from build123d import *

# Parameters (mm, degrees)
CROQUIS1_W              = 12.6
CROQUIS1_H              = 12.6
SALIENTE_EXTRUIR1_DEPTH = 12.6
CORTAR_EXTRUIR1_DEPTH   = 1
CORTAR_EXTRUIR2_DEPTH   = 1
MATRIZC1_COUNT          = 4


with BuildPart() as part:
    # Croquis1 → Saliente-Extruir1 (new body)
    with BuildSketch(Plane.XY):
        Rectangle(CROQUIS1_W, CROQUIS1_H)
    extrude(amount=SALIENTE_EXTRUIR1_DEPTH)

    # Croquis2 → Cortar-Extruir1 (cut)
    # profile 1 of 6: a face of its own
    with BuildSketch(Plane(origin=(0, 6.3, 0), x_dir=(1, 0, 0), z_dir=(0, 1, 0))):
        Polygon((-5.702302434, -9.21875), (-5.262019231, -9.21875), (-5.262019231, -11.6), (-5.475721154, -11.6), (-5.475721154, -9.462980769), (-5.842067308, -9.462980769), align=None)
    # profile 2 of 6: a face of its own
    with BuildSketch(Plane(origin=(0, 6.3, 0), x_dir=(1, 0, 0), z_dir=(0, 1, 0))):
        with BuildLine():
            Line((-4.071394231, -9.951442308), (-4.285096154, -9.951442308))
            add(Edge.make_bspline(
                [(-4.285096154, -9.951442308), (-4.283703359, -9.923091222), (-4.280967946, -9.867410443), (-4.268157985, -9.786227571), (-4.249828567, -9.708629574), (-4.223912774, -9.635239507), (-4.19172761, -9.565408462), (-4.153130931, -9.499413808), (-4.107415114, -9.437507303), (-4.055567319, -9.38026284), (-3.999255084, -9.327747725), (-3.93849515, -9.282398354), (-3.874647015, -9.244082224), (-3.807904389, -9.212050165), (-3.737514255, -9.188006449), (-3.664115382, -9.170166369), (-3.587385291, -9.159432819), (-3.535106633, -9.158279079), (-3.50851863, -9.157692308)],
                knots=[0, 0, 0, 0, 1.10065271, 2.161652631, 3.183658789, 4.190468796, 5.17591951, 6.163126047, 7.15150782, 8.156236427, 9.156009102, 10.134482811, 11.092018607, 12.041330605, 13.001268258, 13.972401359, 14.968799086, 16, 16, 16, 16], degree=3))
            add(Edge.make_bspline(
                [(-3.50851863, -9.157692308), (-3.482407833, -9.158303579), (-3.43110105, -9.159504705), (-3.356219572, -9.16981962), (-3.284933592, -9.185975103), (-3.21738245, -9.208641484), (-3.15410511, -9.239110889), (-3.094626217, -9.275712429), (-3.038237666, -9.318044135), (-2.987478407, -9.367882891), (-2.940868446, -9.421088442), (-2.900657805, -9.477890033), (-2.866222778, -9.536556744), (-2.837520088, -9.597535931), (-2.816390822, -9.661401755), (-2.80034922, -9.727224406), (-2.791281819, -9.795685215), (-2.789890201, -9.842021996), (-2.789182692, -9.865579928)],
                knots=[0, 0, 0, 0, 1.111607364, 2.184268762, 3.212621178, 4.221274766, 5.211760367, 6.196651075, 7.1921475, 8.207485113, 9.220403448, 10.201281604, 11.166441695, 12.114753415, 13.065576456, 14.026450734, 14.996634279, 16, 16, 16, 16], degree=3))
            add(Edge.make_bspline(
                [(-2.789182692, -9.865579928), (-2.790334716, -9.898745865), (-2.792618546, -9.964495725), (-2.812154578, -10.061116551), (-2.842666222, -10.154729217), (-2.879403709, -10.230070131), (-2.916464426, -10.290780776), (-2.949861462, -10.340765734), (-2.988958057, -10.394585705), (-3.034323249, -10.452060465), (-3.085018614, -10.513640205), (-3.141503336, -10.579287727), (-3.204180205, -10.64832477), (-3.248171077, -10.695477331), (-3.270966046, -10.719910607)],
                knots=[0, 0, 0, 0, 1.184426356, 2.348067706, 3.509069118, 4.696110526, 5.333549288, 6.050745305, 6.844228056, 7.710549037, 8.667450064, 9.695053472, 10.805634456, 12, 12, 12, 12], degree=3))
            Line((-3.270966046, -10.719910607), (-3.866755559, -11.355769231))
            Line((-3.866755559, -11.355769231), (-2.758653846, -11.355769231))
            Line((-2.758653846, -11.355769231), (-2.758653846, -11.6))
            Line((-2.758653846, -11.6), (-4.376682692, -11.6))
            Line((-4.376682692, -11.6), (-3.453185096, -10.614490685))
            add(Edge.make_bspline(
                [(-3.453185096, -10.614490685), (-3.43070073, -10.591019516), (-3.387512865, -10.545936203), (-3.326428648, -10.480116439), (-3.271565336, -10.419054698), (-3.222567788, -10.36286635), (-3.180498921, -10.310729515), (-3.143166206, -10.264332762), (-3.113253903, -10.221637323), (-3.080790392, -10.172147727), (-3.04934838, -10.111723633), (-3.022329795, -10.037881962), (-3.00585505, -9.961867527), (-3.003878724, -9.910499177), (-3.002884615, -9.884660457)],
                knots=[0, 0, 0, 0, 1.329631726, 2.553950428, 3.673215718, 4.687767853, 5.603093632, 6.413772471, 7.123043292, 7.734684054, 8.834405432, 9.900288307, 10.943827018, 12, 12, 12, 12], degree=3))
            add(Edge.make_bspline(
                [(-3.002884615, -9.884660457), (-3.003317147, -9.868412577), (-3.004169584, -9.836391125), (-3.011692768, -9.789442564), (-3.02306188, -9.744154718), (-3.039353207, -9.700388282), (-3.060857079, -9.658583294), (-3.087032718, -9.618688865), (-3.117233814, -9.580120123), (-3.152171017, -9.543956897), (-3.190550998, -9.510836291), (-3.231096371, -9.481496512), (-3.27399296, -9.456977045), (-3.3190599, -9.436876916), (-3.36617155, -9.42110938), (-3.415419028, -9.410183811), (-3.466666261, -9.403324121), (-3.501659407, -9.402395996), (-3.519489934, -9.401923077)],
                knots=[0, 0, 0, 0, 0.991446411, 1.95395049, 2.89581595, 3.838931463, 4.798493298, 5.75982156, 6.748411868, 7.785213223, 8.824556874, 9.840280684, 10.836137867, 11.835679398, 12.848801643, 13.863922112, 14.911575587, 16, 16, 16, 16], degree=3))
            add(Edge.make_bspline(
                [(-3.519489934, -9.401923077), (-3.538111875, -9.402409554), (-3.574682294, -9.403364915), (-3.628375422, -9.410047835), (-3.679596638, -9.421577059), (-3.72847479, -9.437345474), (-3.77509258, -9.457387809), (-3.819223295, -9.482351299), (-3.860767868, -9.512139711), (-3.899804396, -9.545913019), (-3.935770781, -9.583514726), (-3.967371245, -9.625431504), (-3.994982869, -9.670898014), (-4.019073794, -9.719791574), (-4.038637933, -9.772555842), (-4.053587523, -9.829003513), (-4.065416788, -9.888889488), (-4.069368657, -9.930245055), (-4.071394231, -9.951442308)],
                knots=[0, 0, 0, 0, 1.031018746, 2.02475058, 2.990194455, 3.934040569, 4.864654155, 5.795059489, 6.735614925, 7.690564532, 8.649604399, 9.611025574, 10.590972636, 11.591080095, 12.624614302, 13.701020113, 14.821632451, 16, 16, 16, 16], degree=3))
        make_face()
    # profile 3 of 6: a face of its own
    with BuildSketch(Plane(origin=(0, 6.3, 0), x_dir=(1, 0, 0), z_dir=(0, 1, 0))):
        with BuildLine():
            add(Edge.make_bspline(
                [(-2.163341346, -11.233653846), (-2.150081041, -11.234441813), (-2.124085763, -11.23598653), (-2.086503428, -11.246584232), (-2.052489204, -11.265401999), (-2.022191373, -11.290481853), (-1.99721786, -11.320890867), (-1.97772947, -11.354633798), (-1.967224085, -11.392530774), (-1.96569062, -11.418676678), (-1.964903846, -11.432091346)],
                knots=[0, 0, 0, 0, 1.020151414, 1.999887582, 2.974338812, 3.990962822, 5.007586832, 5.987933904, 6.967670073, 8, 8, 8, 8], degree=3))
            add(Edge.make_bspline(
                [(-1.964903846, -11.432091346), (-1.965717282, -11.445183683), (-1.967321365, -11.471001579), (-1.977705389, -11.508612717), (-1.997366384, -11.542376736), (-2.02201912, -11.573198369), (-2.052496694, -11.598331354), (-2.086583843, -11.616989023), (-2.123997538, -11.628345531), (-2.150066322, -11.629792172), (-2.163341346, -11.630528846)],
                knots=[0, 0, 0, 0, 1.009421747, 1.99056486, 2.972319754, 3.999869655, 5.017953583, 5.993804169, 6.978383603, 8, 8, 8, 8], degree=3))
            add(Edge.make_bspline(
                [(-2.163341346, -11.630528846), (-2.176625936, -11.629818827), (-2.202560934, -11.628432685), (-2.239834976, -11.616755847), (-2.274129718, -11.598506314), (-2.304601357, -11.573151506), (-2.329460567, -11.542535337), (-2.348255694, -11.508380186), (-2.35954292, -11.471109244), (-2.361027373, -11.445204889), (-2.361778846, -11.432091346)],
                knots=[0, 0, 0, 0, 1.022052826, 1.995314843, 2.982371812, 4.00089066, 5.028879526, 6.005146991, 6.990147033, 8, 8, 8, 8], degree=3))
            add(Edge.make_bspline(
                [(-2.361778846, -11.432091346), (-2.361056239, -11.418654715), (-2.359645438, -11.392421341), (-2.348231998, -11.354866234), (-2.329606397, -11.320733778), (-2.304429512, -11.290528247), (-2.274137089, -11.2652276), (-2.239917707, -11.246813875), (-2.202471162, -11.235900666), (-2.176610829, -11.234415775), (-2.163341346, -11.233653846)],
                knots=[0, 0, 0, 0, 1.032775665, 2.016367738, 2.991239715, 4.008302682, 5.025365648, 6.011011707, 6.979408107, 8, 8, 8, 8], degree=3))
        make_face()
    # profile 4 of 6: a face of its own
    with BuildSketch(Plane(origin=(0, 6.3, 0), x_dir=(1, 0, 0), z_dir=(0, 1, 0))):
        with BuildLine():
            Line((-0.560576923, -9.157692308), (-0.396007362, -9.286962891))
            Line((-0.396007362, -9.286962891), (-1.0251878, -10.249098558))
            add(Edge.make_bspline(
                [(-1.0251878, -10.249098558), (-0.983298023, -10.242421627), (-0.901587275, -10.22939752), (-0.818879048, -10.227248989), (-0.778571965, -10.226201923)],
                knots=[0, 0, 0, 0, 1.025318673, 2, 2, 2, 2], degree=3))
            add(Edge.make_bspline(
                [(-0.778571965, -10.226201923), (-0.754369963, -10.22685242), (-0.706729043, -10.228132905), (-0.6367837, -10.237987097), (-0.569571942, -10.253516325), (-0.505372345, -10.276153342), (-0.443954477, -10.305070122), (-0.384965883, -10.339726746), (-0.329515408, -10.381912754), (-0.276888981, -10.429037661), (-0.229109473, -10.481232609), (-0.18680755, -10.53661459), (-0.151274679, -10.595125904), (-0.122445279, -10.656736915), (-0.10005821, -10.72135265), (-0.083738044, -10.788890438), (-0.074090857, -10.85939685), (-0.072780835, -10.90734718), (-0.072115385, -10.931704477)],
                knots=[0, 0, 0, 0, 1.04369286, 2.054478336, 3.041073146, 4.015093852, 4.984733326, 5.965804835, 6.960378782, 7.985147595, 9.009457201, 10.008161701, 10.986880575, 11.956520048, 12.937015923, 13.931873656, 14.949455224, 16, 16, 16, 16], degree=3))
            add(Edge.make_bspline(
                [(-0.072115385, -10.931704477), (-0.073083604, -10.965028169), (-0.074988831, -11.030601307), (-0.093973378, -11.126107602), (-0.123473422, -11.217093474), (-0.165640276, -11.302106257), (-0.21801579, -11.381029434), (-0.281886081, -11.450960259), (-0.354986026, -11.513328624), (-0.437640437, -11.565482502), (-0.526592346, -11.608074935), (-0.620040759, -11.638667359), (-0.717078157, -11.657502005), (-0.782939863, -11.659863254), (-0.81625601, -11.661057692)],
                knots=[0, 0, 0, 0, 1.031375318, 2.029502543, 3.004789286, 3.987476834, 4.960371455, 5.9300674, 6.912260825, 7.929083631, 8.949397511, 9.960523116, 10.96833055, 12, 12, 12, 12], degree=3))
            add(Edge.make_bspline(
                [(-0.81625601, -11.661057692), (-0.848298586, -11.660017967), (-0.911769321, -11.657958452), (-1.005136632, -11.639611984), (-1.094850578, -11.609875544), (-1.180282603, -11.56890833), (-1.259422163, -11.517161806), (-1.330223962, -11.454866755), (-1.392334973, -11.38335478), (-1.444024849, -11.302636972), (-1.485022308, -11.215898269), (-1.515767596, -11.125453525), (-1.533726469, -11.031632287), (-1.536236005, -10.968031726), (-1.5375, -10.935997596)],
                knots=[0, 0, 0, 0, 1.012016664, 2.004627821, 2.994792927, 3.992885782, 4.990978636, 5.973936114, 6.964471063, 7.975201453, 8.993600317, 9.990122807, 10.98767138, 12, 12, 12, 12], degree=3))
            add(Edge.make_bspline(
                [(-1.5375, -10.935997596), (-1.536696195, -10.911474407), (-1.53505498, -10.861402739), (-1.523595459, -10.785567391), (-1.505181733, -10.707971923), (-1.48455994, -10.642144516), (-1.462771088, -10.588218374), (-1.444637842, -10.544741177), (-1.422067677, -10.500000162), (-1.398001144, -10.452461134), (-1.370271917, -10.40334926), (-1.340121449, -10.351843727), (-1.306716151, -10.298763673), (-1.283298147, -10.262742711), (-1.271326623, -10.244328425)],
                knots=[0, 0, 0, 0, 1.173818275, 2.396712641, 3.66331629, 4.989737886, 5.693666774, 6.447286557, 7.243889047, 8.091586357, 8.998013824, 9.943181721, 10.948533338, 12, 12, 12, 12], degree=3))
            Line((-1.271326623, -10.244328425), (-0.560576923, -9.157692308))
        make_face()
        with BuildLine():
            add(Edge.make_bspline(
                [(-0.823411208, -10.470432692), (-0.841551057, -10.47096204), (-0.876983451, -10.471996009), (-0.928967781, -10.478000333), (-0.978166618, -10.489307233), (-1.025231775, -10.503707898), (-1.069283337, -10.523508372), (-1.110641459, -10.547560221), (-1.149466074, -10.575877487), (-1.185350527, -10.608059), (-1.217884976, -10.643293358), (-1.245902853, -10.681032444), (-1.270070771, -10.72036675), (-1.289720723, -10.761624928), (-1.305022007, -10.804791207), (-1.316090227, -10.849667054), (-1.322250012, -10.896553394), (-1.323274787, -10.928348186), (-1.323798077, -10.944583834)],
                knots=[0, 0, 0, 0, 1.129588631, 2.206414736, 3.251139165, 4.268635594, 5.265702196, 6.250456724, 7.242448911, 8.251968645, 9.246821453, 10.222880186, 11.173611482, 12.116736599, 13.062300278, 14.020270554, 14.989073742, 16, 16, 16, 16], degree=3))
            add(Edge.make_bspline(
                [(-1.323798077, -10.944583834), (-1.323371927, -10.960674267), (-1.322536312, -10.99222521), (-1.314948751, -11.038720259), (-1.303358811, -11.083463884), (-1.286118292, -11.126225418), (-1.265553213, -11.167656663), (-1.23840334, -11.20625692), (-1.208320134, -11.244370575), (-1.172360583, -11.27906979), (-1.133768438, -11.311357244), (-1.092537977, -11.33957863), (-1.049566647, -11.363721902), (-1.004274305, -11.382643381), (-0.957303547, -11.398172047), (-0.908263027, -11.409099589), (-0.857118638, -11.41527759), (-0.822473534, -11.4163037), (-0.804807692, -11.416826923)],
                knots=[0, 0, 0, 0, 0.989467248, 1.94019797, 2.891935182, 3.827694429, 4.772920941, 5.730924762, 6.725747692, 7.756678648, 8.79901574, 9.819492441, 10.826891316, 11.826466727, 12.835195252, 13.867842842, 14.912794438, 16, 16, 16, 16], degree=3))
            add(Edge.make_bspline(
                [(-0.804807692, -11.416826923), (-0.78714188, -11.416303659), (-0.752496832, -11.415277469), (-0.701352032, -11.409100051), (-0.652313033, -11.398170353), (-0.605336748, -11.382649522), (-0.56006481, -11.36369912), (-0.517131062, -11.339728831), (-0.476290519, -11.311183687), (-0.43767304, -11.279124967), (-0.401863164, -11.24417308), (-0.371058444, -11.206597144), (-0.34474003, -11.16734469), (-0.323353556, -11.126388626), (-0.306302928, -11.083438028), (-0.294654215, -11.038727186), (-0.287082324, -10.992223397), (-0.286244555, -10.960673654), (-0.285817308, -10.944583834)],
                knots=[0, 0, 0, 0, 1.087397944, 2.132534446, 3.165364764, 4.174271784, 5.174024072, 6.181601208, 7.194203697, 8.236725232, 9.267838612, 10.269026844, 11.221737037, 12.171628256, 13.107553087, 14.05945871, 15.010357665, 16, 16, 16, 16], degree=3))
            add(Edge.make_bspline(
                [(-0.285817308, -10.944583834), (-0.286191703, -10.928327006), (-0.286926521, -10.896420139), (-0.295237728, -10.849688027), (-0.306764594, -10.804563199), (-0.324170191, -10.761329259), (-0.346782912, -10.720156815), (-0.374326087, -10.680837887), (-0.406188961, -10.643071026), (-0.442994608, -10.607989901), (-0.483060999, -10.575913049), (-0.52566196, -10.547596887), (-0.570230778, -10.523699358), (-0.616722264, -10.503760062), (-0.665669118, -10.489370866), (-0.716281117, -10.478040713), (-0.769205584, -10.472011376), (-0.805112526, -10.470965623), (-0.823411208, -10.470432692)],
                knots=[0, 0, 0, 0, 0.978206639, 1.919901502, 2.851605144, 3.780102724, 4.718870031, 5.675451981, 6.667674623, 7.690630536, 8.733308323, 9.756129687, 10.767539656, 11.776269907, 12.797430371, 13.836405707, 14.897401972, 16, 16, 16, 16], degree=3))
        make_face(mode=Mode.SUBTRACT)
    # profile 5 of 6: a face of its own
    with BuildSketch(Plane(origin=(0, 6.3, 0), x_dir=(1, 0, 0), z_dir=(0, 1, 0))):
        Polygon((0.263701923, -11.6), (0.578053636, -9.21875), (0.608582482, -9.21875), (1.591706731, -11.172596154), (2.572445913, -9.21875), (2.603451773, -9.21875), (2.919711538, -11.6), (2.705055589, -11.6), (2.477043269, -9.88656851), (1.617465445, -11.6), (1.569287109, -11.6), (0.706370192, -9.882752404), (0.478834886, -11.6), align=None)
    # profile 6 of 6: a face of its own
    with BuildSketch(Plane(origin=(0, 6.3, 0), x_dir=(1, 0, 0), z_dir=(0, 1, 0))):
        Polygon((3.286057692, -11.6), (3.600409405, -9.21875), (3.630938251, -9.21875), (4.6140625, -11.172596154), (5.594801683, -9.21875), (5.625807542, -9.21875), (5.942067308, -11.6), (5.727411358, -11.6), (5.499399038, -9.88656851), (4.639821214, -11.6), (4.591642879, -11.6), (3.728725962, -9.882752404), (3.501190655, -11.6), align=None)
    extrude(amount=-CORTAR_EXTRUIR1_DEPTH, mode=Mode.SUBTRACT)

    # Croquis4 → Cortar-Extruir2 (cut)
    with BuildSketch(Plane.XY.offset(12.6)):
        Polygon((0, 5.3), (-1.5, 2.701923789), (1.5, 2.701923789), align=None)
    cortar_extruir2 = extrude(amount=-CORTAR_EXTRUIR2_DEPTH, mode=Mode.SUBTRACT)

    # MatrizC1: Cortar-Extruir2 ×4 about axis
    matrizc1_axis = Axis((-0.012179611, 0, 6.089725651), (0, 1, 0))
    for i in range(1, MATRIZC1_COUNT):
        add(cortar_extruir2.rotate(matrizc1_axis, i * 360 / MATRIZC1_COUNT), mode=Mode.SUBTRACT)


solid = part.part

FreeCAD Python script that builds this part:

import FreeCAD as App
import Part
import Sketcher
from FreeCAD import Vector
Q = App.Units.Quantity

doc = App.newDocument("Part")
body = doc.addObject("PartDesign::Body", "Body")

# Sketch on XY plane
sketch1 = doc.addObject("Sketcher::SketchObject", "Sketch")
body.addObject(sketch1)
sketch1.AttachmentSupport = (doc.XY_Plane, [""])
sketch1.MapMode = "FlatFace"
sketch1.addGeometry([
    Part.LineSegment(Vector(-6.3, 6.3, 0), Vector(-6.3, -6.3, 0)),
    Part.LineSegment(Vector(-6.3, -6.3, 0), Vector(6.3, -6.3, 0)),
    Part.LineSegment(Vector(6.3, -6.3, 0), Vector(6.3, 6.3, 0)),
    Part.LineSegment(Vector(6.3, 6.3, 0), Vector(-6.3, 6.3, 0)),
], False)
sketch1.addConstraint([
    Sketcher.Constraint("Coincident", 0, 2, 1, 1),
    Sketcher.Constraint("Coincident", 1, 2, 2, 1),
    Sketcher.Constraint("Coincident", 2, 2, 3, 1),
    Sketcher.Constraint("Coincident", 3, 2, 0, 1),
    Sketcher.Constraint("Vertical", 0),
    Sketcher.Constraint("Horizontal", 1),
    Sketcher.Constraint("Vertical", 2),
    Sketcher.Constraint("Horizontal", 3),
    Sketcher.Constraint("Symmetric", 0, 2, 2, 2, -1, 1),
    Sketcher.Constraint("Equal", 3, 0),
    Sketcher.Constraint("DistanceX", 1, 1, 1, 2, Q("12.6 mm")),
])
pad1 = doc.addObject("PartDesign::Pad", "Pad")
body.addObject(pad1)
pad1.Profile = sketch1
pad1.Length = 12.6

# Sketch on XZ plane
sketch2 = doc.addObject("Sketcher::SketchObject", "Sketch001")
body.addObject(sketch2)
sketch2.AttachmentSupport = (doc.XZ_Plane, [""])
sketch2.MapMode = "FlatFace"
sketch2.AttachmentOffset = App.Placement(Vector(0, 0, -6.3), App.Rotation())
sketch2.addGeometry([
    Part.LineSegment(Vector(-5.262019, 9.21875, 0), Vector(-5.702302, 9.21875, 0)),  # 0
    Part.LineSegment(Vector(-5.702302, 9.21875, 0), Vector(-5.842067, 9.462981, 0)),  # 1
    Part.LineSegment(Vector(-5.842067, 9.462981, 0), Vector(-5.475721, 9.462981, 0)),  # 2
    Part.LineSegment(Vector(-5.475721, 9.462981, 0), Vector(-5.475721, 11.6, 0)),  # 3
    Part.LineSegment(Vector(-5.475721, 11.6, 0), Vector(-5.262019, 11.6, 0)),  # 4
    Part.LineSegment(Vector(-5.262019, 11.6, 0), Vector(-5.262019, 9.21875, 0)),  # 5
    Part.LineSegment(Vector(-4.285096, 9.951442, 0), Vector(-4.071394, 9.951442, 0)),  # 6
    Part.BSplineCurve([Vector(-3.51949, 9.401923, 0), Vector(-3.538112, 9.40241, 0), Vector(-3.574682, 9.403365, 0), Vector(-3.628375, 9.410048, 0), Vector(-3.679597, 9.421577, 0), Vector(-3.728475, 9.437345, 0), Vector(-3.775093, 9.457388, 0), Vector(-3.819223, 9.482351, 0), Vector(-3.860768, 9.51214, 0), Vector(-3.899804, 9.545913, 0), Vector(-3.935771, 9.583515, 0), Vector(-3.967371, 9.625432, 0), Vector(-3.994983, 9.670898, 0), Vector(-4.019074, 9.719792, 0), Vector(-4.038638, 9.772556, 0), Vector(-4.053588, 9.829004, 0), Vector(-4.065417, 9.888889, 0), Vector(-4.069369, 9.930245, 0), Vector(-4.071394, 9.951442, 0)], [4, 1, 1, 1, 1, 1, 1, 1, 1, 1, 1, 1, 1, 1, 1, 1, 4], [0, 1.031018746, 2.02475058, 2.990194455, 3.934040569, 4.864654155, 5.795059489, 6.735614925, 7.690564532, 8.649604399, 9.611025574, 10.590972636, 11.591080095, 12.624614302, 13.701020113, 14.821632451, 16], False, 3, [1, 1, 1, 1, 1, 1, 1, 1, 1, 1, 1, 1, 1, 1, 1, 1, 1, 1, 1], False),  # 7
    Part.BSplineCurve([Vector(-3.002885, 9.88466, 0), Vector(-3.003317, 9.868413, 0), Vector(-3.00417, 9.836391, 0), Vector(-3.011693, 9.789443, 0), Vector(-3.023062, 9.744155, 0), Vector(-3.039353, 9.700388, 0), Vector(-3.060857, 9.658583, 0), Vector(-3.087033, 9.618689, 0), Vector(-3.117234, 9.58012, 0), Vector(-3.152171, 9.543957, 0), Vector(-3.190551, 9.510836, 0), Vector(-3.231096, 9.481497, 0), Vector(-3.273993, 9.456977, 0), Vector(-3.31906, 9.436877, 0), Vector(-3.366172, 9.421109, 0), Vector(-3.415419, 9.410184, 0), Vector(-3.466666, 9.403324, 0), Vector(-3.501659, 9.402396, 0), Vector(-3.51949, 9.401923, 0)], [4, 1, 1, 1, 1, 1, 1, 1, 1, 1, 1, 1, 1, 1, 1, 1, 4], [0, 0.991446411, 1.95395049, 2.89581595, 3.838931463, 4.798493298, 5.75982156, 6.748411868, 7.785213223, 8.824556874, 9.840280684, 10.836137867, 11.835679398, 12.848801643, 13.863922112, 14.911575587, 16], False, 3, [1, 1, 1, 1, 1, 1, 1, 1, 1, 1, 1, 1, 1, 1, 1, 1, 1, 1, 1], False),  # 8
    Part.BSplineCurve([Vector(-3.453185, 10.614491, 0), Vector(-3.430701, 10.59102, 0), Vector(-3.387513, 10.545936, 0), Vector(-3.326429, 10.480116, 0), Vector(-3.271565, 10.419055, 0), Vector(-3.222568, 10.362866, 0), Vector(-3.180499, 10.31073, 0), Vector(-3.143166, 10.264333, 0), Vector(-3.113254, 10.221637, 0), Vector(-3.08079, 10.172148, 0), Vector(-3.049348, 10.111724, 0), Vector(-3.02233, 10.037882, 0), Vector(-3.005855, 9.961868, 0), Vector(-3.003879, 9.910499, 0), Vector(-3.002885, 9.88466, 0)], [4, 1, 1, 1, 1, 1, 1, 1, 1, 1, 1, 1, 4], [0, 1.329631726, 2.553950428, 3.673215718, 4.687767853, 5.603093632, 6.413772471, 7.123043292, 7.734684054, 8.834405432, 9.900288307, 10.943827018, 12], False, 3, [1, 1, 1, 1, 1, 1, 1, 1, 1, 1, 1, 1, 1, 1, 1], False),  # 9
    Part.LineSegment(Vector(-3.453185, 10.614491, 0), Vector(-4.376683, 11.6, 0)),  # 10
    Part.LineSegment(Vector(-4.376683, 11.6, 0), Vector(-2.758654, 11.6, 0)),  # 11
    Part.LineSegment(Vector(-2.758654, 11.6, 0), Vector(-2.758654, 11.355769, 0)),  # 12
    Part.LineSegment(Vector(-2.758654, 11.355769, 0), Vector(-3.866756, 11.355769, 0)),  # 13
    Part.LineSegment(Vector(-3.866756, 11.355769, 0), Vector(-3.270966, 10.719911, 0)),  # 14
    Part.BSplineCurve([Vector(-2.789183, 9.86558, 0), Vector(-2.790335, 9.898746, 0), Vector(-2.792619, 9.964496, 0), Vector(-2.812155, 10.061117, 0), Vector(-2.842666, 10.154729, 0), Vector(-2.879404, 10.23007, 0), Vector(-2.916464, 10.290781, 0), Vector(-2.949861, 10.340766, 0), Vector(-2.988958, 10.394586, 0), Vector(-3.034323, 10.45206, 0), Vector(-3.085019, 10.51364, 0), Vector(-3.141503, 10.579288, 0), Vector(-3.20418, 10.648325, 0), Vector(-3.248171, 10.695477, 0), Vector(-3.270966, 10.719911, 0)], [4, 1, 1, 1, 1, 1, 1, 1, 1, 1, 1, 1, 4], [0, 1.184426356, 2.348067706, 3.509069118, 4.696110526, 5.333549288, 6.050745305, 6.844228056, 7.710549037, 8.667450064, 9.695053472, 10.805634456, 12], False, 3, [1, 1, 1, 1, 1, 1, 1, 1, 1, 1, 1, 1, 1, 1, 1], False),  # 15
    Part.BSplineCurve([Vector(-3.508519, 9.157692, 0), Vector(-3.482408, 9.158304, 0), Vector(-3.431101, 9.159505, 0), Vector(-3.35622, 9.16982, 0), Vector(-3.284934, 9.185975, 0), Vector(-3.217382, 9.208641, 0), Vector(-3.154105, 9.239111, 0), Vector(-3.094626, 9.275712, 0), Vector(-3.038238, 9.318044, 0), Vector(-2.987478, 9.367883, 0), Vector(-2.940868, 9.421088, 0), Vector(-2.900658, 9.47789, 0), Vector(-2.866223, 9.536557, 0), Vector(-2.83752, 9.597536, 0), Vector(-2.816391, 9.661402, 0), Vector(-2.800349, 9.727224, 0), Vector(-2.791282, 9.795685, 0), Vector(-2.78989, 9.842022, 0), Vector(-2.789183, 9.86558, 0)], [4, 1, 1, 1, 1, 1, 1, 1, 1, 1, 1, 1, 1, 1, 1, 1, 4], [0, 1.111607364, 2.184268762, 3.212621178, 4.221274766, 5.211760367, 6.196651075, 7.1921475, 8.207485113, 9.220403448, 10.201281604, 11.166441695, 12.114753415, 13.065576456, 14.026450734, 14.996634279, 16], False, 3, [1, 1, 1, 1, 1, 1, 1, 1, 1, 1, 1, 1, 1, 1, 1, 1, 1, 1, 1], False),  # 16
    Part.BSplineCurve([Vector(-4.285096, 9.951442, 0), Vector(-4.283703, 9.923091, 0), Vector(-4.280968, 9.86741, 0), Vector(-4.268158, 9.786228, 0), Vector(-4.249829, 9.70863, 0), Vector(-4.223913, 9.63524, 0), Vector(-4.191728, 9.565408, 0), Vector(-4.153131, 9.499414, 0), Vector(-4.107415, 9.437507, 0), Vector(-4.055567, 9.380263, 0), Vector(-3.999255, 9.327748, 0), Vector(-3.938495, 9.282398, 0), Vector(-3.874647, 9.244082, 0), Vector(-3.807904, 9.21205, 0), Vector(-3.737514, 9.188006, 0), Vector(-3.664115, 9.170166, 0), Vector(-3.587385, 9.159433, 0), Vector(-3.535107, 9.158279, 0), Vector(-3.508519, 9.157692, 0)], [4, 1, 1, 1, 1, 1, 1, 1, 1, 1, 1, 1, 1, 1, 1, 1, 4], [0, 1.10065271, 2.161652631, 3.183658789, 4.190468796, 5.17591951, 6.163126047, 7.15150782, 8.156236427, 9.156009102, 10.134482811, 11.092018607, 12.041330605, 13.001268258, 13.972401359, 14.968799086, 16], False, 3, [1, 1, 1, 1, 1, 1, 1, 1, 1, 1, 1, 1, 1, 1, 1, 1, 1, 1, 1], False),  # 17
    Part.BSplineCurve([Vector(-2.163341, 11.233654, 0), Vector(-2.150081, 11.234442, 0), Vector(-2.124086, 11.235987, 0), Vector(-2.086503, 11.246584, 0), Vector(-2.052489, 11.265402, 0), Vector(-2.022191, 11.290482, 0), Vector(-1.997218, 11.320891, 0), Vector(-1.977729, 11.354634, 0), Vector(-1.967224, 11.392531, 0), Vector(-1.965691, 11.418677, 0), Vector(-1.964904, 11.432091, 0)], [4, 1, 1, 1, 1, 1, 1, 1, 4], [0, 1.020151414, 1.999887582, 2.974338812, 3.990962822, 5.007586832, 5.987933904, 6.967670073, 8], False, 3, [1, 1, 1, 1, 1, 1, 1, 1, 1, 1, 1], False),  # 18
    Part.BSplineCurve([Vector(-2.361779, 11.432091, 0), Vector(-2.361056, 11.418655, 0), Vector(-2.359645, 11.392421, 0), Vector(-2.348232, 11.354866, 0), Vector(-2.329606, 11.320734, 0), Vector(-2.30443, 11.290528, 0), Vector(-2.274137, 11.265228, 0), Vector(-2.239918, 11.246814, 0), Vector(-2.202471, 11.235901, 0), Vector(-2.176611, 11.234416, 0), Vector(-2.163341, 11.233654, 0)], [4, 1, 1, 1, 1, 1, 1, 1, 4], [0, 1.032775665, 2.016367738, 2.991239715, 4.008302682, 5.025365648, 6.011011707, 6.979408107, 8], False, 3, [1, 1, 1, 1, 1, 1, 1, 1, 1, 1, 1], False),  # 19
    Part.BSplineCurve([Vector(-2.163341, 11.630529, 0), Vector(-2.176626, 11.629819, 0), Vector(-2.202561, 11.628433, 0), Vector(-2.239835, 11.616756, 0), Vector(-2.27413, 11.598506, 0), Vector(-2.304601, 11.573152, 0), Vector(-2.329461, 11.542535, 0), Vector(-2.348256, 11.50838, 0), Vector(-2.359543, 11.471109, 0), Vector(-2.361027, 11.445205, 0), Vector(-2.361779, 11.432091, 0)], [4, 1, 1, 1, 1, 1, 1, 1, 4], [0, 1.022052826, 1.995314843, 2.982371812, 4.00089066, 5.028879526, 6.005146991, 6.990147033, 8], False, 3, [1, 1, 1, 1, 1, 1, 1, 1, 1, 1, 1], False),  # 20
    Part.BSplineCurve([Vector(-1.964904, 11.432091, 0), Vector(-1.965717, 11.445184, 0), Vector(-1.967321, 11.471002, 0), Vector(-1.977705, 11.508613, 0), Vector(-1.997366, 11.542377, 0), Vector(-2.022019, 11.573198, 0), Vector(-2.052497, 11.598331, 0), Vector(-2.086584, 11.616989, 0), Vector(-2.123998, 11.628346, 0), Vector(-2.150066, 11.629792, 0), Vector(-2.163341, 11.630529, 0)], [4, 1, 1, 1, 1, 1, 1, 1, 4], [0, 1.009421747, 1.99056486, 2.972319754, 3.999869655, 5.017953583, 5.993804169, 6.978383603, 8], False, 3, [1, 1, 1, 1, 1, 1, 1, 1, 1, 1, 1], False),  # 21
    Part.LineSegment(Vector(-0.396007, 9.286963, 0), Vector(-0.560577, 9.157692, 0)),  # 22
    Part.LineSegment(Vector(-0.560577, 9.157692, 0), Vector(-1.271327, 10.244328, 0)),  # 23
    Part.BSplineCurve([Vector(-1.5375, 10.935998, 0), Vector(-1.536696, 10.911474, 0), Vector(-1.535055, 10.861403, 0), Vector(-1.523595, 10.785567, 0), Vector(-1.505182, 10.707972, 0), Vector(-1.48456, 10.642145, 0), Vector(-1.462771, 10.588218, 0), Vector(-1.444638, 10.544741, 0), Vector(-1.422068, 10.5, 0), Vector(-1.398001, 10.452461, 0), Vector(-1.370272, 10.403349, 0), Vector(-1.340121, 10.351844, 0), Vector(-1.306716, 10.298764, 0), Vector(-1.283298, 10.262743, 0), Vector(-1.271327, 10.244328, 0)], [4, 1, 1, 1, 1, 1, 1, 1, 1, 1, 1, 1, 4], [0, 1.173818275, 2.396712641, 3.66331629, 4.989737886, 5.693666774, 6.447286557, 7.243889047, 8.091586357, 8.998013824, 9.943181721, 10.948533338, 12], False, 3, [1, 1, 1, 1, 1, 1, 1, 1, 1, 1, 1, 1, 1, 1, 1], False),  # 24
    Part.BSplineCurve([Vector(-0.816256, 11.661058, 0), Vector(-0.848299, 11.660018, 0), Vector(-0.911769, 11.657958, 0), Vector(-1.005137, 11.639612, 0), Vector(-1.094851, 11.609876, 0), Vector(-1.180283, 11.568908, 0), Vector(-1.259422, 11.517162, 0), Vector(-1.330224, 11.454867, 0), Vector(-1.392335, 11.383355, 0), Vector(-1.444025, 11.302637, 0), Vector(-1.485022, 11.215898, 0), Vector(-1.515768, 11.125454, 0), Vector(-1.533726, 11.031632, 0), Vector(-1.536236, 10.968032, 0), Vector(-1.5375, 10.935998, 0)], [4, 1, 1, 1, 1, 1, 1, 1, 1, 1, 1, 1, 4], [0, 1.012016664, 2.004627821, 2.994792927, 3.992885782, 4.990978636, 5.973936114, 6.964471063, 7.975201453, 8.993600317, 9.990122807, 10.98767138, 12], False, 3, [1, 1, 1, 1, 1, 1, 1, 1, 1, 1, 1, 1, 1, 1, 1], False),  # 25
    Part.BSplineCurve([Vector(-0.072115, 10.931704, 0), Vector(-0.073084, 10.965028, 0), Vector(-0.074989, 11.030601, 0), Vector(-0.093973, 11.126108, 0), Vector(-0.123473, 11.217093, 0), Vector(-0.16564, 11.302106, 0), Vector(-0.218016, 11.381029, 0), Vector(-0.281886, 11.45096, 0), Vector(-0.354986, 11.513329, 0), Vector(-0.43764, 11.565483, 0), Vector(-0.526592, 11.608075, 0), Vector(-0.620041, 11.638667, 0), Vector(-0.717078, 11.657502, 0), Vector(-0.78294, 11.659863, 0), Vector(-0.816256, 11.661058, 0)], [4, 1, 1, 1, 1, 1, 1, 1, 1, 1, 1, 1, 4], [0, 1.031375318, 2.029502543, 3.004789286, 3.987476834, 4.960371455, 5.9300674, 6.912260825, 7.929083631, 8.949397511, 9.960523116, 10.96833055, 12], False, 3, [1, 1, 1, 1, 1, 1, 1, 1, 1, 1, 1, 1, 1, 1, 1], False),  # 26
    Part.BSplineCurve([Vector(-0.778572, 10.226202, 0), Vector(-0.75437, 10.226852, 0), Vector(-0.706729, 10.228133, 0), Vector(-0.636784, 10.237987, 0), Vector(-0.569572, 10.253516, 0), Vector(-0.505372, 10.276153, 0), Vector(-0.443954, 10.30507, 0), Vector(-0.384966, 10.339727, 0), Vector(-0.329515, 10.381913, 0), Vector(-0.276889, 10.429038, 0), Vector(-0.229109, 10.481233, 0), Vector(-0.186808, 10.536615, 0), Vector(-0.151275, 10.595126, 0), Vector(-0.122445, 10.656737, 0), Vector(-0.100058, 10.721353, 0), Vector(-0.083738, 10.78889, 0), Vector(-0.074091, 10.859397, 0), Vector(-0.072781, 10.907347, 0), Vector(-0.072115, 10.931704, 0)], [4, 1, 1, 1, 1, 1, 1, 1, 1, 1, 1, 1, 1, 1, 1, 1, 4], [0, 1.04369286, 2.054478336, 3.041073146, 4.015093852, 4.984733326, 5.965804835, 6.960378782, 7.985147595, 9.009457201, 10.008161701, 10.986880575, 11.956520048, 12.937015923, 13.931873656, 14.949455224, 16], False, 3, [1, 1, 1, 1, 1, 1, 1, 1, 1, 1, 1, 1, 1, 1, 1, 1, 1, 1, 1], False),  # 27
    Part.BSplineCurve([Vector(-1.025188, 10.249099, 0), Vector(-0.983298, 10.242422, 0), Vector(-0.901587, 10.229398, 0), Vector(-0.818879, 10.227249, 0), Vector(-0.778572, 10.226202, 0)], [4, 1, 4], [0, 1.025318673, 2], False, 3, [1, 1, 1, 1, 1], False),  # 28
    Part.LineSegment(Vector(-1.025188, 10.249099, 0), Vector(-0.396007, 9.286963, 0)),  # 29
    Part.BSplineCurve([Vector(-0.285817, 10.944584, 0), Vector(-0.286192, 10.928327, 0), Vector(-0.286927, 10.89642, 0), Vector(-0.295238, 10.849688, 0), Vector(-0.306765, 10.804563, 0), Vector(-0.32417, 10.761329, 0), Vector(-0.346783, 10.720157, 0), Vector(-0.374326, 10.680838, 0), Vector(-0.406189, 10.643071, 0), Vector(-0.442995, 10.60799, 0), Vector(-0.483061, 10.575913, 0), Vector(-0.525662, 10.547597, 0), Vector(-0.570231, 10.523699, 0), Vector(-0.616722, 10.50376, 0), Vector(-0.665669, 10.489371, 0), Vector(-0.716281, 10.478041, 0), Vector(-0.769206, 10.472011, 0), Vector(-0.805113, 10.470966, 0), Vector(-0.823411, 10.470433, 0)], [4, 1, 1, 1, 1, 1, 1, 1, 1, 1, 1, 1, 1, 1, 1, 1, 4], [0, 0.978206639, 1.919901502, 2.851605144, 3.780102724, 4.718870031, 5.675451981, 6.667674623, 7.690630536, 8.733308323, 9.756129687, 10.767539656, 11.776269907, 12.797430371, 13.836405707, 14.897401972, 16], False, 3, [1, 1, 1, 1, 1, 1, 1, 1, 1, 1, 1, 1, 1, 1, 1, 1, 1, 1, 1], False),  # 30
    Part.BSplineCurve([Vector(-0.804808, 11.416827, 0), Vector(-0.787142, 11.416304, 0), Vector(-0.752497, 11.415277, 0), Vector(-0.701352, 11.4091, 0), Vector(-0.652313, 11.39817, 0), Vector(-0.605337, 11.38265, 0), Vector(-0.560065, 11.363699, 0), Vector(-0.517131, 11.339729, 0), Vector(-0.476291, 11.311184, 0), Vector(-0.437673, 11.279125, 0), Vector(-0.401863, 11.244173, 0), Vector(-0.371058, 11.206597, 0), Vector(-0.34474, 11.167345, 0), Vector(-0.323354, 11.126389, 0), Vector(-0.306303, 11.083438, 0), Vector(-0.294654, 11.038727, 0), Vector(-0.287082, 10.992223, 0), Vector(-0.286245, 10.960674, 0), Vector(-0.285817, 10.944584, 0)], [4, 1, 1, 1, 1, 1, 1, 1, 1, 1, 1, 1, 1, 1, 1, 1, 4], [0, 1.087397944, 2.132534446, 3.165364764, 4.174271784, 5.174024072, 6.181601208, 7.194203697, 8.236725232, 9.267838612, 10.269026844, 11.221737037, 12.171628256, 13.107553087, 14.05945871, 15.010357665, 16], False, 3, [1, 1, 1, 1, 1, 1, 1, 1, 1, 1, 1, 1, 1, 1, 1, 1, 1, 1, 1], False),  # 31
    Part.BSplineCurve([Vector(-1.323798, 10.944584, 0), Vector(-1.323372, 10.960674, 0), Vector(-1.322536, 10.992225, 0), Vector(-1.314949, 11.03872, 0), Vector(-1.303359, 11.083464, 0), Vector(-1.286118, 11.126225, 0), Vector(-1.265553, 11.167657, 0), Vector(-1.238403, 11.206257, 0), Vector(-1.20832, 11.244371, 0), Vector(-1.172361, 11.27907, 0), Vector(-1.133768, 11.311357, 0), Vector(-1.092538, 11.339579, 0), Vector(-1.049567, 11.363722, 0), Vector(-1.004274, 11.382643, 0), Vector(-0.957304, 11.398172, 0), Vector(-0.908263, 11.4091, 0), Vector(-0.857119, 11.415278, 0), Vector(-0.822474, 11.416304, 0), Vector(-0.804808, 11.416827, 0)], [4, 1, 1, 1, 1, 1, 1, 1, 1, 1, 1, 1, 1, 1, 1, 1, 4], [0, 0.989467248, 1.94019797, 2.891935182, 3.827694429, 4.772920941, 5.730924762, 6.725747692, 7.756678648, 8.79901574, 9.819492441, 10.826891316, 11.826466727, 12.835195252, 13.867842842, 14.912794438, 16], False, 3, [1, 1, 1, 1, 1, 1, 1, 1, 1, 1, 1, 1, 1, 1, 1, 1, 1, 1, 1], False),  # 32
    Part.BSplineCurve([Vector(-0.823411, 10.470433, 0), Vector(-0.841551, 10.470962, 0), Vector(-0.876983, 10.471996, 0), Vector(-0.928968, 10.478, 0), Vector(-0.978167, 10.489307, 0), Vector(-1.025232, 10.503708, 0), Vector(-1.069283, 10.523508, 0), Vector(-1.110641, 10.54756, 0), Vector(-1.149466, 10.575877, 0), Vector(-1.185351, 10.608059, 0), Vector(-1.217885, 10.643293, 0), Vector(-1.245903, 10.681032, 0), Vector(-1.270071, 10.720367, 0), Vector(-1.289721, 10.761625, 0), Vector(-1.305022, 10.804791, 0), Vector(-1.31609, 10.849667, 0), Vector(-1.32225, 10.896553, 0), Vector(-1.323275, 10.928348, 0), Vector(-1.323798, 10.944584, 0)], [4, 1, 1, 1, 1, 1, 1, 1, 1, 1, 1, 1, 1, 1, 1, 1, 4], [0, 1.129588631, 2.206414736, 3.251139165, 4.268635594, 5.265702196, 6.250456724, 7.242448911, 8.251968645, 9.246821453, 10.222880186, 11.173611482, 12.116736599, 13.062300278, 14.020270554, 14.989073742, 16], False, 3, [1, 1, 1, 1, 1, 1, 1, 1, 1, 1, 1, 1, 1, 1, 1, 1, 1, 1, 1], False),  # 33
    Part.LineSegment(Vector(0.578054, 9.21875, 0), Vector(0.263702, 11.6, 0)),  # 34
    Part.LineSegment(Vector(0.263702, 11.6, 0), Vector(0.478835, 11.6, 0)),  # 35
    Part.LineSegment(Vector(0.478835, 11.6, 0), Vector(0.70637, 9.882752, 0)),  # 36
    Part.LineSegment(Vector(0.70637, 9.882752, 0), Vector(1.569287, 11.6, 0)),  # 37
    Part.LineSegment(Vector(1.569287, 11.6, 0), Vector(1.617465, 11.6, 0)),  # 38
    Part.LineSegment(Vector(1.617465, 11.6, 0), Vector(2.477043, 9.886569, 0)),  # 39
    Part.LineSegment(Vector(2.477043, 9.886569, 0), Vector(2.705056, 11.6, 0)),  # 40
    Part.LineSegment(Vector(2.705056, 11.6, 0), Vector(2.919712, 11.6, 0)),  # 41
    Part.LineSegment(Vector(2.919712, 11.6, 0), Vector(2.603452, 9.21875, 0)),  # 42
    Part.LineSegment(Vector(2.603452, 9.21875, 0), Vector(2.572446, 9.21875, 0)),  # 43
    Part.LineSegment(Vector(2.572446, 9.21875, 0), Vector(1.591707, 11.172596, 0)),  # 44
    Part.LineSegment(Vector(1.591707, 11.172596, 0), Vector(0.608582, 9.21875, 0)),  # 45
    Part.LineSegment(Vector(0.608582, 9.21875, 0), Vector(0.578054, 9.21875, 0)),  # 46
    Part.LineSegment(Vector(3.600409, 9.21875, 0), Vector(3.286058, 11.6, 0)),  # 47
    Part.LineSegment(Vector(3.286058, 11.6, 0), Vector(3.501191, 11.6, 0)),  # 48
    Part.LineSegment(Vector(3.501191, 11.6, 0), Vector(3.728726, 9.882752, 0)),  # 49
    Part.LineSegment(Vector(3.728726, 9.882752, 0), Vector(4.591643, 11.6, 0)),  # 50
    Part.LineSegment(Vector(4.591643, 11.6, 0), Vector(4.639821, 11.6, 0)),  # 51
    Part.LineSegment(Vector(4.639821, 11.6, 0), Vector(5.499399, 9.886569, 0)),  # 52
    Part.LineSegment(Vector(5.499399, 9.886569, 0), Vector(5.727411, 11.6, 0)),  # 53
    Part.LineSegment(Vector(5.727411, 11.6, 0), Vector(5.942067, 11.6, 0)),  # 54
    Part.LineSegment(Vector(5.942067, 11.6, 0), Vector(5.625808, 9.21875, 0)),  # 55
    Part.LineSegment(Vector(5.625808, 9.21875, 0), Vector(5.594802, 9.21875, 0)),  # 56
    Part.LineSegment(Vector(5.594802, 9.21875, 0), Vector(4.614063, 11.172596, 0)),  # 57
    Part.LineSegment(Vector(4.614063, 11.172596, 0), Vector(3.630938, 9.21875, 0)),  # 58
    Part.LineSegment(Vector(3.630938, 9.21875, 0), Vector(3.600409, 9.21875, 0)),  # 59
], False)
sketch2.addConstraint([
    Sketcher.Constraint("Block", 7),
    Sketcher.Constraint("Block", 8),
    Sketcher.Constraint("Block", 9),
    Sketcher.Constraint("Block", 15),
    Sketcher.Constraint("Block", 16),
    Sketcher.Constraint("Block", 17),
    Sketcher.Constraint("Block", 18),
    Sketcher.Constraint("Block", 19),
    Sketcher.Constraint("Block", 20),
    Sketcher.Constraint("Block", 21),
    Sketcher.Constraint("Block", 24),
    Sketcher.Constraint("Block", 25),
    Sketcher.Constraint("Block", 26),
    Sketcher.Constraint("Block", 27),
    Sketcher.Constraint("Block", 28),
    Sketcher.Constraint("Block", 30),
    Sketcher.Constraint("Block", 31),
    Sketcher.Constraint("Block", 32),
    Sketcher.Constraint("Block", 33),
    Sketcher.Constraint("Coincident", 0, 2, 1, 1),
    Sketcher.Constraint("Coincident", 1, 2, 2, 1),
    Sketcher.Constraint("Coincident", 2, 2, 3, 1),
    Sketcher.Constraint("Coincident", 3, 2, 4, 1),
    Sketcher.Constraint("Coincident", 4, 2, 5, 1),
    Sketcher.Constraint("Coincident", 5, 2, 0, 1),
    Sketcher.Constraint("Coincident", 6, 2, 7, 2),
    Sketcher.Constraint("Coincident", 9, 1, 10, 1),
    Sketcher.Constraint("Coincident", 10, 2, 11, 1),
    Sketcher.Constraint("Coincident", 11, 2, 12, 1),
    Sketcher.Constraint("Coincident", 12, 2, 13, 1),
    Sketcher.Constraint("Coincident", 13, 2, 14, 1),
    Sketcher.Constraint("Coincident", 14, 2, 15, 2),
    Sketcher.Constraint("Coincident", 17, 1, 6, 1),
    Sketcher.Constraint("Coincident", 22, 2, 23, 1),
    Sketcher.Constraint("Coincident", 23, 2, 24, 2),
    Sketcher.Constraint("Coincident", 28, 1, 29, 1),
    Sketcher.Constraint("Coincident", 29, 2, 22, 1),
    Sketcher.Constraint("Coincident", 34, 2, 35, 1),
    Sketcher.Constraint("Coincident", 35, 2, 36, 1),
    Sketcher.Constraint("Coincident", 36, 2, 37, 1),
    Sketcher.Constraint("Coincident", 37, 2, 38, 1),
    Sketcher.Constraint("Coincident", 38, 2, 39, 1),
    Sketcher.Constraint("Coincident", 39, 2, 40, 1),
    Sketcher.Constraint("Coincident", 40, 2, 41, 1),
    Sketcher.Constraint("Coincident", 41, 2, 42, 1),
    Sketcher.Constraint("Coincident", 42, 2, 43, 1),
    Sketcher.Constraint("Coincident", 43, 2, 44, 1),
    Sketcher.Constraint("Coincident", 44, 2, 45, 1),
    Sketcher.Constraint("Coincident", 45, 2, 46, 1),
    Sketcher.Constraint("Coincident", 46, 2, 34, 1),
    Sketcher.Constraint("Coincident", 47, 2, 48, 1),
    Sketcher.Constraint("Coincident", 48, 2, 49, 1),
    Sketcher.Constraint("Coincident", 49, 2, 50, 1),
    Sketcher.Constraint("Coincident", 50, 2, 51, 1),
    Sketcher.Constraint("Coincident", 51, 2, 52, 1),
    Sketcher.Constraint("Coincident", 52, 2, 53, 1),
    Sketcher.Constraint("Coincident", 53, 2, 54, 1),
    Sketcher.Constraint("Coincident", 54, 2, 55, 1),
    Sketcher.Constraint("Coincident", 55, 2, 56, 1),
    Sketcher.Constraint("Coincident", 56, 2, 57, 1),
    Sketcher.Constraint("Coincident", 57, 2, 58, 1),
    Sketcher.Constraint("Coincident", 58, 2, 59, 1),
    Sketcher.Constraint("Coincident", 59, 2, 47, 1),
    Sketcher.Constraint("Horizontal", 0),
    Sketcher.Constraint("Horizontal", 2),
    Sketcher.Constraint("Vertical", 3),
    Sketcher.Constraint("Horizontal", 4),
    Sketcher.Constraint("Vertical", 5),
    Sketcher.Constraint("Horizontal", 11),
    Sketcher.Constraint("Vertical", 12),
    Sketcher.Constraint("Horizontal", 13),
    Sketcher.Constraint("Horizontal", 35),
    Sketcher.Constraint("Horizontal", 38),
    Sketcher.Constraint("Horizontal", 41),
    Sketcher.Constraint("Horizontal", 43),
    Sketcher.Constraint("Horizontal", 46),
    Sketcher.Constraint("Horizontal", 48),
    Sketcher.Constraint("Horizontal", 51),
    Sketcher.Constraint("Horizontal", 54),
    Sketcher.Constraint("Horizontal", 56),
    Sketcher.Constraint("Horizontal", 59),
    Sketcher.Constraint("DistanceY", -1, 1, 3, 2, Q("11.6 mm")),
    Sketcher.Constraint("DistanceY", -1, 1, 10, 2, Q("11.6 mm")),
    Sketcher.Constraint("DistanceY", -1, 1, 34, 2, Q("11.6 mm")),
    Sketcher.Constraint("DistanceY", -1, 1, 37, 2, Q("11.6 mm")),
    Sketcher.Constraint("DistanceY", -1, 1, 40, 2, Q("11.6 mm")),
    Sketcher.Constraint("DistanceY", -1, 1, 47, 2, Q("11.6 mm")),
    Sketcher.Constraint("DistanceY", -1, 1, 50, 2, Q("11.6 mm")),
    Sketcher.Constraint("DistanceY", -1, 1, 53, 2, Q("11.6 mm")),
    Sketcher.Constraint("DistanceX", 4, 1, 4, 2, Q("0.213702 mm")),
    Sketcher.Constraint("DistanceX", 13, 2, 13, 1, Q("1.108102 mm")),
    Sketcher.Constraint("DistanceX", 11, 1, 11, 2, Q("1.618029 mm")),
    Sketcher.Constraint("DistanceX", 38, 1, 38, 2, Q("0.048178 mm")),
    Sketcher.Constraint("DistanceX", 46, 2, 46, 1, Q("0.030529 mm")),
    Sketcher.Constraint("DistanceX", 51, 1, 51, 2, Q("0.048178 mm")),
    Sketcher.Constraint("DistanceX", 59, 2, 59, 1, Q("0.030529 mm")),
    Sketcher.Constraint("DistanceY", 3, 1, 3, 2, Q("2.137019 mm")),
    Sketcher.Constraint("DistanceY", 5, 2, 5, 1, Q("2.38125 mm")),
    Sketcher.Constraint("DistanceY", 12, 2, 12, 1, Q("0.244231 mm")),
    Sketcher.Constraint("DistanceX", -1, 1, 34, 2, Q("0.263702 mm")),
    Sketcher.Constraint("DistanceX", -1, 1, 52, 2, Q("5.499399 mm")),
    Sketcher.Constraint("DistanceX", -1, 1, 56, 2, Q("5.594802 mm")),
    Sketcher.Constraint("Distance", 22, Q("0.20927 mm")),
    Sketcher.Constraint("Distance", 23, Q("1.298439 mm")),
    Sketcher.Constraint("Distance", 34, Q("2.401909 mm")),
    Sketcher.Constraint("Distance", 42, Q("2.40216 mm")),
    Sketcher.Constraint("Distance", 47, Q("2.401909 mm")),
    Sketcher.Constraint("Distance", 55, Q("2.40216 mm")),
    Sketcher.Constraint("DistanceX", 0, 2, 0, 1, Q("0.440283 mm")),
    Sketcher.Constraint("DistanceX", 2, 1, 2, 2, Q("0.366346 mm")),
    Sketcher.Constraint("DistanceX", 35, 1, 35, 2, Q("0.215133 mm")),
    Sketcher.Constraint("DistanceX", 41, 1, 41, 2, Q("0.214656 mm")),
    Sketcher.Constraint("DistanceX", 43, 2, 43, 1, Q("0.031006 mm")),
    Sketcher.Constraint("DistanceX", 48, 1, 48, 2, Q("0.215133 mm")),
    Sketcher.Constraint("DistanceX", 54, 1, 54, 2, Q("0.214656 mm")),
    Sketcher.Constraint("DistanceX", 56, 2, 56, 1, Q("0.031006 mm")),
    Sketcher.Constraint("DistanceX", 2, 2, -1, 1, Q("5.475721 mm")),
    Sketcher.Constraint("DistanceX", -1, 1, 36, 2, Q("0.70637 mm")),
    Sketcher.Constraint("DistanceY", -1, 1, 39, 2, Q("9.886569 mm")),
    Sketcher.Constraint("DistanceX", -1, 1, 41, 2, Q("2.919712 mm")),
    Sketcher.Constraint("DistanceX", -1, 1, 42, 2, Q("2.603452 mm")),
    Sketcher.Constraint("DistanceY", -1, 1, 45, 2, Q("9.21875 mm")),
    Sketcher.Constraint("DistanceX", -1, 1, 48, 2, Q("3.501191 mm")),
    Sketcher.Constraint("DistanceX", -1, 1, 51, 2, Q("4.639821 mm")),
    Sketcher.Constraint("DistanceY", -1, 1, 52, 2, Q("9.886569 mm")),
    Sketcher.Constraint("DistanceX", -1, 1, 53, 2, Q("5.727411 mm")),
    Sketcher.Constraint("DistanceX", -1, 1, 58, 2, Q("3.630938 mm")),
    Sketcher.Constraint("DistanceX", 3, 2, 10, 2, Q("1.099038 mm")),
    Sketcher.Constraint("DistanceX", 14, 2, 22, 2, Q("2.710389 mm")),
    Sketcher.Constraint("DistanceX", 22, 2, 29, 2, Q("0.16457 mm")),
    Sketcher.Constraint("DistanceY", 29, 2, 36, 2, Q("0.59579 mm")),
    Sketcher.Constraint("DistanceX", 35, 2, 38, 2, Q("1.138631 mm")),
    Sketcher.Constraint("DistanceX", 35, 2, 39, 2, Q("1.998208 mm")),
    Sketcher.Constraint("DistanceX", 37, 2, 44, 2, Q("0.02242 mm")),
    Sketcher.Constraint("DistanceX", 43, 2, 49, 2, Q("1.15628 mm")),
    Sketcher.Constraint("DistanceX", 50, 2, 57, 2, Q("0.02242 mm")),
    Sketcher.Constraint("Distance", 44, Q("2.186176 mm")),
    Sketcher.Constraint("Distance", 49, Q("1.732256 mm")),
    Sketcher.Constraint("Distance", 57, Q("2.186176 mm")),
])
pocket1 = doc.addObject("PartDesign::Pocket", "Pocket")
body.addObject(pocket1)
pocket1.Profile = sketch2
pocket1.Length = 1
pocket1.Reversed = True

# Sketch on XY plane
sketch3 = doc.addObject("Sketcher::SketchObject", "Sketch002")
body.addObject(sketch3)
sketch3.AttachmentSupport = (doc.XY_Plane, [""])
sketch3.MapMode = "FlatFace"
sketch3.AttachmentOffset = App.Placement(Vector(0, 0, 12.6), App.Rotation())
sketch3.addGeometry([
    Part.LineSegment(Vector(0, 5.3, 0), Vector(-1.5, 2.701924, 0)),
    Part.LineSegment(Vector(-1.5, 2.701924, 0), Vector(1.5, 2.701924, 0)),
    Part.LineSegment(Vector(1.5, 2.701924, 0), Vector(0, 5.3, 0)),
], False)
sketch3.addConstraint([
    Sketcher.Constraint("Coincident", 0, 2, 1, 1),
    Sketcher.Constraint("Coincident", 1, 2, 2, 1),
    Sketcher.Constraint("Coincident", 2, 2, 0, 1),
    Sketcher.Constraint("Horizontal", 1),
    Sketcher.Constraint("PointOnObject", 2, 2, -2),
    Sketcher.Constraint("Equal", 0, 2),
    Sketcher.Constraint("DistanceX", 1, 1, 1, 2, Q("3 mm")),
    Sketcher.Constraint("Angle", 0, Q("-120 deg")),
    Sketcher.Constraint("DistanceY", -1, 1, 2, 2, Q("5.3 mm")),
])
pocket2 = doc.addObject("PartDesign::Pocket", "Pocket001")
body.addObject(pocket2)
pocket2.Profile = sketch3
pocket2.Length = 1
doc.recompute()

datumline = doc.addObject("PartDesign::Line", "DatumLine")
body.addObject(datumline)
datumline.Placement = App.Placement(Vector(-0.01218, 0, 6.089726), App.Rotation(Vector(0, 0, 1), Vector(0, 1, 0)))
polarpattern = doc.addObject("PartDesign::PolarPattern", "PolarPattern")
body.addObject(polarpattern)
polarpattern.Originals = [pocket2]
polarpattern.Axis = (datumline, [""])
polarpattern.Angle = 360
polarpattern.Occurrences = 4
body.Tip = polarpattern

doc.recompute()
